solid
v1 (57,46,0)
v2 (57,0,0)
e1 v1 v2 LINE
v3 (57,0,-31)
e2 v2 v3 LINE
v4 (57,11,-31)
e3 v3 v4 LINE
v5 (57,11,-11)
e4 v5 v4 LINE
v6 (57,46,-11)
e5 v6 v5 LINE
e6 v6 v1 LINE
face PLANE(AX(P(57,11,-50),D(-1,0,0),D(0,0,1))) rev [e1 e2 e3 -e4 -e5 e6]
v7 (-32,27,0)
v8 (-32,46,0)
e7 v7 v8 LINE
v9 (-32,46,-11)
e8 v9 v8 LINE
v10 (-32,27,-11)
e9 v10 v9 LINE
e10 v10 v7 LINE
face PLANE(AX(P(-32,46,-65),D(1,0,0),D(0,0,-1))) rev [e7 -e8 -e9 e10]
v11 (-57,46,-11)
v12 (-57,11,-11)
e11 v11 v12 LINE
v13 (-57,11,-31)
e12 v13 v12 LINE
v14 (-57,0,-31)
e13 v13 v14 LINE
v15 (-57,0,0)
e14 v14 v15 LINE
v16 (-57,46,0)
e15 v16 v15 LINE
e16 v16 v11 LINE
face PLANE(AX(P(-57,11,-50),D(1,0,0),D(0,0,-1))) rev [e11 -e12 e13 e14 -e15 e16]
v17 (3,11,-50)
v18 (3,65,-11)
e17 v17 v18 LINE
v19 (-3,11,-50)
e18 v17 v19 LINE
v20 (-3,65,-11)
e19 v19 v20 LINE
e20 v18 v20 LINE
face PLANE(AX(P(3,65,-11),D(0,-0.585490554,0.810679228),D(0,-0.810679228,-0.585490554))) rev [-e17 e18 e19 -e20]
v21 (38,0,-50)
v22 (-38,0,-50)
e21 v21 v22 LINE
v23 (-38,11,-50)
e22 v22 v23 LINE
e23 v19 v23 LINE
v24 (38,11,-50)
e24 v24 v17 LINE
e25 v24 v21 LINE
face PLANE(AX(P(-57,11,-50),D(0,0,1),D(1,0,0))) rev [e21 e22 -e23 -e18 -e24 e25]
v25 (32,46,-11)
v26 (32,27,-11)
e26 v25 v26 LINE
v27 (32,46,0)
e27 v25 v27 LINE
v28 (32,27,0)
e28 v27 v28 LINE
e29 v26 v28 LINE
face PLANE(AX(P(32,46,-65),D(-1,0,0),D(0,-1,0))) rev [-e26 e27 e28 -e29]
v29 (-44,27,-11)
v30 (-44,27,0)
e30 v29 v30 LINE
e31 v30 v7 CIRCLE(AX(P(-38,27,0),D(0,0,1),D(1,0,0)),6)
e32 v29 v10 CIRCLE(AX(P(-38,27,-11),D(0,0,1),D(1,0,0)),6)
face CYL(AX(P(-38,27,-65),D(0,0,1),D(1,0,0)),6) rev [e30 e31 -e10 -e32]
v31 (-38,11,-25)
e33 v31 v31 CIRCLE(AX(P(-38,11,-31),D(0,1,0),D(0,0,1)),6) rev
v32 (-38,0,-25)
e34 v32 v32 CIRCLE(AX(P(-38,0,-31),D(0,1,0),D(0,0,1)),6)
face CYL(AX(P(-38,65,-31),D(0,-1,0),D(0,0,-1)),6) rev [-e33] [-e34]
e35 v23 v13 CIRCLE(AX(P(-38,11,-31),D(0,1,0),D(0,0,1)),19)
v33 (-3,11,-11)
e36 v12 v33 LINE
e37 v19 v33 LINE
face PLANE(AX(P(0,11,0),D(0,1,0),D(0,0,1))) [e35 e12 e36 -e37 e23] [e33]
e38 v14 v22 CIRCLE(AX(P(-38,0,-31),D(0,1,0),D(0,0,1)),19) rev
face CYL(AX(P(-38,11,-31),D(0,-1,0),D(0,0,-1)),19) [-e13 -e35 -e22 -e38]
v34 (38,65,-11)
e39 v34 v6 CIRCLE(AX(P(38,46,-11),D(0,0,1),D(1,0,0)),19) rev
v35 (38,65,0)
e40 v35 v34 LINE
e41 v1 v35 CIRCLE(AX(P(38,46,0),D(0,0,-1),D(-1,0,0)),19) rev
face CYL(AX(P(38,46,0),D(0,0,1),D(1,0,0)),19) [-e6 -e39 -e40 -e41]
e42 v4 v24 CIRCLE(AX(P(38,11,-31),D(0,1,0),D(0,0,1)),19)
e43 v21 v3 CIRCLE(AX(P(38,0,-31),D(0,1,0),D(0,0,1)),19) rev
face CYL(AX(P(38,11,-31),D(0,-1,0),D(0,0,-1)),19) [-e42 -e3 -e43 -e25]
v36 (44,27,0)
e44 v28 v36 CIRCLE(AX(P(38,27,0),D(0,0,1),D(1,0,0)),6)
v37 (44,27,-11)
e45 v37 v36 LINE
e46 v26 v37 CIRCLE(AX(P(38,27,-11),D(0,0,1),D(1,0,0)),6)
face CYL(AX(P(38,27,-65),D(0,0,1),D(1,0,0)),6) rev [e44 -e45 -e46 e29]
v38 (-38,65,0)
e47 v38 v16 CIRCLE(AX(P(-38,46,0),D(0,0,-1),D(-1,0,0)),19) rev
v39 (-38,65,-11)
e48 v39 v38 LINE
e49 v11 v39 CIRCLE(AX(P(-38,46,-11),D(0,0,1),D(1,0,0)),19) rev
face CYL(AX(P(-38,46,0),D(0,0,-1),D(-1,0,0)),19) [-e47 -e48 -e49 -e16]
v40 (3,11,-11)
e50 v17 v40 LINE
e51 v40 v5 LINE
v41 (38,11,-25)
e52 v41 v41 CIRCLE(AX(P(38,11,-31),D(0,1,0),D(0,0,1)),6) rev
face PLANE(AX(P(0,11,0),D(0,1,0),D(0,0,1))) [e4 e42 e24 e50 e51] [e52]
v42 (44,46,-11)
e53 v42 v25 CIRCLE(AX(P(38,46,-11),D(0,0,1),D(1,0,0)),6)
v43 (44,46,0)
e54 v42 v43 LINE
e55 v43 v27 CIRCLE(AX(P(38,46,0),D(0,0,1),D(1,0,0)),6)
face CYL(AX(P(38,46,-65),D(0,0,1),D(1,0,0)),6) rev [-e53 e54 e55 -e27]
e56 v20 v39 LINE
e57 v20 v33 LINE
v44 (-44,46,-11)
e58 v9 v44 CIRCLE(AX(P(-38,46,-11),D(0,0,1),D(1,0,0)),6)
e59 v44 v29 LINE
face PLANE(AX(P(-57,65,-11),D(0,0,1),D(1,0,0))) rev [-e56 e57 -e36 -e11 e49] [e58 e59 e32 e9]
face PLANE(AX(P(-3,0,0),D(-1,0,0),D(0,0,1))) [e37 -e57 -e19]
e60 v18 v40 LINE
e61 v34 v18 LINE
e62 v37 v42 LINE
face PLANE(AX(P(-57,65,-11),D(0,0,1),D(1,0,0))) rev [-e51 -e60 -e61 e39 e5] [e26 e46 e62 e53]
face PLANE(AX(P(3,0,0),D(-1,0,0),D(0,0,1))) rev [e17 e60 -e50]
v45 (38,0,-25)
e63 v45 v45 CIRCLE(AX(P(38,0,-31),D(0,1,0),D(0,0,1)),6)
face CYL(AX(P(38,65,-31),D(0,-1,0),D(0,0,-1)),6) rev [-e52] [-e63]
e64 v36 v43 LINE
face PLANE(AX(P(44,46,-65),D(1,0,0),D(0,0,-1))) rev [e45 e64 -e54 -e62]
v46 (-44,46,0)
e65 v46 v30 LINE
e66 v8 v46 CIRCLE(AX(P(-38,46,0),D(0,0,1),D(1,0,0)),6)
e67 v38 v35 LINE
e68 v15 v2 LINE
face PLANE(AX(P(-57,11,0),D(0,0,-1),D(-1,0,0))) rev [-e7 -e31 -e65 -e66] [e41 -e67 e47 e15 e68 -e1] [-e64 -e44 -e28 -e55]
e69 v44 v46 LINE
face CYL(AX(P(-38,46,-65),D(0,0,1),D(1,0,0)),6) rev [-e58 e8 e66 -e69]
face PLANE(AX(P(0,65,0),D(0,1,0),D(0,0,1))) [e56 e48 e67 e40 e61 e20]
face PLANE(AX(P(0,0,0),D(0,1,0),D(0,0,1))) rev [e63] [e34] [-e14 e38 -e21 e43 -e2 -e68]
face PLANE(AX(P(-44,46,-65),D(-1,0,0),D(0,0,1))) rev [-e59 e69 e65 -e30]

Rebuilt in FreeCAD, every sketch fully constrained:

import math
import FreeCAD as App
import Part
import Sketcher

V = App.Vector


def edges_at(feature, points):
    """Names of the edges that pass closest to the given points."""
    edges = feature.Shape.Edges
    near = lambda p: min(range(len(edges)), key=lambda i: edges[i].distToShape(Part.Vertex(*p))[0])
    return sorted({f"Edge{near(p) + 1}" for p in points})

doc = App.newDocument("Part")
body = doc.addObject("PartDesign::Body", "Body")

# Sketch on XZ plane
sketch1 = doc.addObject("Sketcher::SketchObject", "Sketch")
body.addObject(sketch1)
sketch1.AttachmentSupport = (doc.XZ_Plane, [""])
sketch1.MapMode = "FlatFace"
sketch1.addGeometry([
    Part.LineSegment(V(-57, -50, 0), V(-57, 0, 0)),
    Part.LineSegment(V(-57, 0, 0), V(57, 0, 0)),
    Part.LineSegment(V(57, 0, 0), V(57, -50, 0)),
    Part.LineSegment(V(57, -50, 0), V(-57, -50, 0)),
], False)
sketch1.addConstraint([
    Sketcher.Constraint("Coincident", 0, 2, 1, 1),
    Sketcher.Constraint("Coincident", 1, 2, 2, 1),
    Sketcher.Constraint("Coincident", 2, 2, 3, 1),
    Sketcher.Constraint("Coincident", 3, 2, 0, 1),
    Sketcher.Constraint("Vertical", 0),
    Sketcher.Constraint("Horizontal", 1),
    Sketcher.Constraint("Vertical", 2),
    Sketcher.Constraint("Horizontal", 3),
    Sketcher.Constraint("Symmetric", 0, 2, 1, 2, -1, 1),
    Sketcher.Constraint("DistanceX", 1, 1, 1, 2, 114.0),
    Sketcher.Constraint("DistanceY", 0, 1, 0, 2, 50.0),
])
pad1 = doc.addObject("PartDesign::Pad", "Pad")
body.addObject(pad1)
pad1.Profile = sketch1
pad1.Length = 11
pad1.Reversed = True
doc.recompute()

fillet = doc.addObject("PartDesign::Fillet", "Fillet")
body.addObject(fillet)
fillet.Base = (pad1, edges_at(pad1, [(-57, 5.5, -50), (57, 5.5, -50)]))
fillet.Radius = 19

# Sketch on XZ plane
sketch2 = doc.addObject("Sketcher::SketchObject", "Sketch001")
body.addObject(sketch2)
sketch2.AttachmentSupport = (doc.XZ_Plane, [""])
sketch2.MapMode = "FlatFace"
sketch2.addGeometry([
    Part.LineSegment(V(-57, -11, 0), V(-57, 0, 0)),
    Part.LineSegment(V(-57, 0, 0), V(57, 0, 0)),
    Part.LineSegment(V(57, 0, 0), V(57, -11, 0)),
    Part.LineSegment(V(57, -11, 0), V(-57, -11, 0)),
], False)
sketch2.addConstraint([
    Sketcher.Constraint("Coincident", 0, 2, 1, 1),
    Sketcher.Constraint("Coincident", 1, 2, 2, 1),
    Sketcher.Constraint("Coincident", 2, 2, 3, 1),
    Sketcher.Constraint("Coincident", 3, 2, 0, 1),
    Sketcher.Constraint("Vertical", 0),
    Sketcher.Constraint("Horizontal", 1),
    Sketcher.Constraint("Vertical", 2),
    Sketcher.Constraint("Horizontal", 3),
    Sketcher.Constraint("Symmetric", 0, 2, 1, 2, -1, 1),
    Sketcher.Constraint("DistanceX", 1, 1, 1, 2, 114.0),
    Sketcher.Constraint("DistanceY", 0, 1, 0, 2, 11.0),
])
pad2 = doc.addObject("PartDesign::Pad", "Pad001")
body.addObject(pad2)
pad2.Profile = sketch2
pad2.Length = 65
pad2.Reversed = True
doc.recompute()

fillet2 = doc.addObject("PartDesign::Fillet", "Fillet001")
body.addObject(fillet2)
fillet2.Base = (pad2, edges_at(pad2, [(57, 65, -5.5), (-57, 65, -5.5)]))
fillet2.Radius = 19

# Sketch on XZ plane
sketch3 = doc.addObject("Sketcher::SketchObject", "Sketch002")
body.addObject(sketch3)
sketch3.AttachmentSupport = (doc.XZ_Plane, [""])
sketch3.MapMode = "FlatFace"
sketch3.addGeometry([
    Part.Circle(V(-38, -31, 0), V(0, 0, 1), 6),
    Part.Circle(V(38, -31, 0), V(0, 0, 1), 6),
], False)
sketch3.addConstraint([
    Sketcher.Constraint("Equal", 0, 1),
    Sketcher.Constraint("Symmetric", 0, 3, 1, 3, -2),
    Sketcher.Constraint("Diameter", 0, 12.0),
    Sketcher.Constraint("DistanceX", 0, 3, -1, 1, 38.0),
    Sketcher.Constraint("DistanceY", 0, 3, -1, 1, 31.0),
])
pocket1 = doc.addObject("PartDesign::Pocket", "Pocket")
body.addObject(pocket1)
pocket1.Profile = sketch3
pocket1.Type = "ThroughAll"

# Sketch on XY plane
sketch4 = doc.addObject("Sketcher::SketchObject", "Sketch003")
body.addObject(sketch4)
sketch4.AttachmentSupport = (doc.XY_Plane, [""])
sketch4.MapMode = "FlatFace"
sketch4.addGeometry([
    Part.LineSegment(V(-44, 46, 0), V(-44, 27, 0)),  # 0
    Part.ArcOfCircle(Part.Circle(V(-38, 27, 0), V(0, 0, 1), 6), math.radians(180), math.radians(360)),  # 1
    Part.LineSegment(V(-32, 27, 0), V(-32, 46, 0)),  # 2
    Part.ArcOfCircle(Part.Circle(V(-38, 46, 0), V(0, 0, 1), 6), math.radians(0), math.radians(180)),  # 3
    Part.LineSegment(V(32, 46, 0), V(32, 27, 0)),  # 4
    Part.ArcOfCircle(Part.Circle(V(38, 27, 0), V(0, 0, 1), 6), math.radians(180), math.radians(360)),  # 5
    Part.LineSegment(V(44, 27, 0), V(44, 46, 0)),  # 6
    Part.ArcOfCircle(Part.Circle(V(38, 46, 0), V(0, 0, 1), 6), math.radians(0), math.radians(180)),  # 7
], False)
sketch4.addConstraint([
    Sketcher.Constraint("Tangent", 0, 2, 1, 1),
    Sketcher.Constraint("Tangent", 1, 2, 2, 1),
    Sketcher.Constraint("Tangent", 2, 2, 3, 1),
    Sketcher.Constraint("Tangent", 3, 2, 0, 1),
    Sketcher.Constraint("Tangent", 4, 2, 5, 1),
    Sketcher.Constraint("Tangent", 5, 2, 6, 1),
    Sketcher.Constraint("Tangent", 6, 2, 7, 1),
    Sketcher.Constraint("Tangent", 7, 2, 4, 1),
    Sketcher.Constraint("Vertical", 0),
    Sketcher.Constraint("Vertical", 2),
    Sketcher.Constraint("Vertical", 4),
    Sketcher.Constraint("Vertical", 6),
    Sketcher.Constraint("Equal", 3, 5),
    Sketcher.Constraint("Symmetric", 1, 3, 5, 3, -2),
    Sketcher.Constraint("Horizontal", 3, 3, 7, 3),
    Sketcher.Constraint("Radius", 1, 6.0),
    Sketcher.Constraint("DistanceY", 0, 2, 0, 1, 19.0),
    Sketcher.Constraint("DistanceX", 1, 3, -1, 1, 38.0),
    Sketcher.Constraint("DistanceY", -1, 1, 1, 3, 27.0),
])
pocket2 = doc.addObject("PartDesign::Pocket", "Pocket001")
body.addObject(pocket2)
pocket2.Profile = sketch4
pocket2.Length = 65

# Sketch on YZ plane
sketch5 = doc.addObject("Sketcher::SketchObject", "Sketch004")
body.addObject(sketch5)
sketch5.AttachmentSupport = (doc.YZ_Plane, [""])
sketch5.MapMode = "FlatFace"
sketch5.addGeometry([
    Part.LineSegment(V(65, -11, 0), V(65, 0, 0)),  # 0
    Part.LineSegment(V(65, 0, 0), V(0, 0, 0)),  # 1
    Part.LineSegment(V(0, 0, 0), V(0, -50, 0)),  # 2
    Part.LineSegment(V(0, -50, 0), V(11, -50, 0)),  # 3
    Part.LineSegment(V(11, -50, 0), V(65, -11, 0)),  # 4
], False)
sketch5.addConstraint([
    Sketcher.Constraint("Coincident", 0, 2, 1, 1),
    Sketcher.Constraint("Coincident", 1, 2, 2, 1),
    Sketcher.Constraint("Coincident", 2, 2, 3, 1),
    Sketcher.Constraint("Coincident", 3, 2, 4, 1),
    Sketcher.Constraint("Coincident", 4, 2, 0, 1),
    Sketcher.Constraint("Vertical", 0),
    Sketcher.Constraint("Horizontal", 1),
    Sketcher.Constraint("Vertical", 2),
    Sketcher.Constraint("Horizontal", 3),
    Sketcher.Constraint("Coincident", 1, 2, -1, 1),
    Sketcher.Constraint("Equal", 3, 0),
    Sketcher.Constraint("DistanceX", 1, 2, 1, 1, 65.0),
    Sketcher.Constraint("DistanceX", 3, 1, 3, 2, 11.0),
    Sketcher.Constraint("DistanceY", 2, 2, 2, 1, 50.0),
])
pad3 = doc.addObject("PartDesign::Pad", "Pad002")
body.addObject(pad3)
pad3.Profile = sketch5
pad3.Length = 6
pad3.Midplane = True

doc.recompute()
